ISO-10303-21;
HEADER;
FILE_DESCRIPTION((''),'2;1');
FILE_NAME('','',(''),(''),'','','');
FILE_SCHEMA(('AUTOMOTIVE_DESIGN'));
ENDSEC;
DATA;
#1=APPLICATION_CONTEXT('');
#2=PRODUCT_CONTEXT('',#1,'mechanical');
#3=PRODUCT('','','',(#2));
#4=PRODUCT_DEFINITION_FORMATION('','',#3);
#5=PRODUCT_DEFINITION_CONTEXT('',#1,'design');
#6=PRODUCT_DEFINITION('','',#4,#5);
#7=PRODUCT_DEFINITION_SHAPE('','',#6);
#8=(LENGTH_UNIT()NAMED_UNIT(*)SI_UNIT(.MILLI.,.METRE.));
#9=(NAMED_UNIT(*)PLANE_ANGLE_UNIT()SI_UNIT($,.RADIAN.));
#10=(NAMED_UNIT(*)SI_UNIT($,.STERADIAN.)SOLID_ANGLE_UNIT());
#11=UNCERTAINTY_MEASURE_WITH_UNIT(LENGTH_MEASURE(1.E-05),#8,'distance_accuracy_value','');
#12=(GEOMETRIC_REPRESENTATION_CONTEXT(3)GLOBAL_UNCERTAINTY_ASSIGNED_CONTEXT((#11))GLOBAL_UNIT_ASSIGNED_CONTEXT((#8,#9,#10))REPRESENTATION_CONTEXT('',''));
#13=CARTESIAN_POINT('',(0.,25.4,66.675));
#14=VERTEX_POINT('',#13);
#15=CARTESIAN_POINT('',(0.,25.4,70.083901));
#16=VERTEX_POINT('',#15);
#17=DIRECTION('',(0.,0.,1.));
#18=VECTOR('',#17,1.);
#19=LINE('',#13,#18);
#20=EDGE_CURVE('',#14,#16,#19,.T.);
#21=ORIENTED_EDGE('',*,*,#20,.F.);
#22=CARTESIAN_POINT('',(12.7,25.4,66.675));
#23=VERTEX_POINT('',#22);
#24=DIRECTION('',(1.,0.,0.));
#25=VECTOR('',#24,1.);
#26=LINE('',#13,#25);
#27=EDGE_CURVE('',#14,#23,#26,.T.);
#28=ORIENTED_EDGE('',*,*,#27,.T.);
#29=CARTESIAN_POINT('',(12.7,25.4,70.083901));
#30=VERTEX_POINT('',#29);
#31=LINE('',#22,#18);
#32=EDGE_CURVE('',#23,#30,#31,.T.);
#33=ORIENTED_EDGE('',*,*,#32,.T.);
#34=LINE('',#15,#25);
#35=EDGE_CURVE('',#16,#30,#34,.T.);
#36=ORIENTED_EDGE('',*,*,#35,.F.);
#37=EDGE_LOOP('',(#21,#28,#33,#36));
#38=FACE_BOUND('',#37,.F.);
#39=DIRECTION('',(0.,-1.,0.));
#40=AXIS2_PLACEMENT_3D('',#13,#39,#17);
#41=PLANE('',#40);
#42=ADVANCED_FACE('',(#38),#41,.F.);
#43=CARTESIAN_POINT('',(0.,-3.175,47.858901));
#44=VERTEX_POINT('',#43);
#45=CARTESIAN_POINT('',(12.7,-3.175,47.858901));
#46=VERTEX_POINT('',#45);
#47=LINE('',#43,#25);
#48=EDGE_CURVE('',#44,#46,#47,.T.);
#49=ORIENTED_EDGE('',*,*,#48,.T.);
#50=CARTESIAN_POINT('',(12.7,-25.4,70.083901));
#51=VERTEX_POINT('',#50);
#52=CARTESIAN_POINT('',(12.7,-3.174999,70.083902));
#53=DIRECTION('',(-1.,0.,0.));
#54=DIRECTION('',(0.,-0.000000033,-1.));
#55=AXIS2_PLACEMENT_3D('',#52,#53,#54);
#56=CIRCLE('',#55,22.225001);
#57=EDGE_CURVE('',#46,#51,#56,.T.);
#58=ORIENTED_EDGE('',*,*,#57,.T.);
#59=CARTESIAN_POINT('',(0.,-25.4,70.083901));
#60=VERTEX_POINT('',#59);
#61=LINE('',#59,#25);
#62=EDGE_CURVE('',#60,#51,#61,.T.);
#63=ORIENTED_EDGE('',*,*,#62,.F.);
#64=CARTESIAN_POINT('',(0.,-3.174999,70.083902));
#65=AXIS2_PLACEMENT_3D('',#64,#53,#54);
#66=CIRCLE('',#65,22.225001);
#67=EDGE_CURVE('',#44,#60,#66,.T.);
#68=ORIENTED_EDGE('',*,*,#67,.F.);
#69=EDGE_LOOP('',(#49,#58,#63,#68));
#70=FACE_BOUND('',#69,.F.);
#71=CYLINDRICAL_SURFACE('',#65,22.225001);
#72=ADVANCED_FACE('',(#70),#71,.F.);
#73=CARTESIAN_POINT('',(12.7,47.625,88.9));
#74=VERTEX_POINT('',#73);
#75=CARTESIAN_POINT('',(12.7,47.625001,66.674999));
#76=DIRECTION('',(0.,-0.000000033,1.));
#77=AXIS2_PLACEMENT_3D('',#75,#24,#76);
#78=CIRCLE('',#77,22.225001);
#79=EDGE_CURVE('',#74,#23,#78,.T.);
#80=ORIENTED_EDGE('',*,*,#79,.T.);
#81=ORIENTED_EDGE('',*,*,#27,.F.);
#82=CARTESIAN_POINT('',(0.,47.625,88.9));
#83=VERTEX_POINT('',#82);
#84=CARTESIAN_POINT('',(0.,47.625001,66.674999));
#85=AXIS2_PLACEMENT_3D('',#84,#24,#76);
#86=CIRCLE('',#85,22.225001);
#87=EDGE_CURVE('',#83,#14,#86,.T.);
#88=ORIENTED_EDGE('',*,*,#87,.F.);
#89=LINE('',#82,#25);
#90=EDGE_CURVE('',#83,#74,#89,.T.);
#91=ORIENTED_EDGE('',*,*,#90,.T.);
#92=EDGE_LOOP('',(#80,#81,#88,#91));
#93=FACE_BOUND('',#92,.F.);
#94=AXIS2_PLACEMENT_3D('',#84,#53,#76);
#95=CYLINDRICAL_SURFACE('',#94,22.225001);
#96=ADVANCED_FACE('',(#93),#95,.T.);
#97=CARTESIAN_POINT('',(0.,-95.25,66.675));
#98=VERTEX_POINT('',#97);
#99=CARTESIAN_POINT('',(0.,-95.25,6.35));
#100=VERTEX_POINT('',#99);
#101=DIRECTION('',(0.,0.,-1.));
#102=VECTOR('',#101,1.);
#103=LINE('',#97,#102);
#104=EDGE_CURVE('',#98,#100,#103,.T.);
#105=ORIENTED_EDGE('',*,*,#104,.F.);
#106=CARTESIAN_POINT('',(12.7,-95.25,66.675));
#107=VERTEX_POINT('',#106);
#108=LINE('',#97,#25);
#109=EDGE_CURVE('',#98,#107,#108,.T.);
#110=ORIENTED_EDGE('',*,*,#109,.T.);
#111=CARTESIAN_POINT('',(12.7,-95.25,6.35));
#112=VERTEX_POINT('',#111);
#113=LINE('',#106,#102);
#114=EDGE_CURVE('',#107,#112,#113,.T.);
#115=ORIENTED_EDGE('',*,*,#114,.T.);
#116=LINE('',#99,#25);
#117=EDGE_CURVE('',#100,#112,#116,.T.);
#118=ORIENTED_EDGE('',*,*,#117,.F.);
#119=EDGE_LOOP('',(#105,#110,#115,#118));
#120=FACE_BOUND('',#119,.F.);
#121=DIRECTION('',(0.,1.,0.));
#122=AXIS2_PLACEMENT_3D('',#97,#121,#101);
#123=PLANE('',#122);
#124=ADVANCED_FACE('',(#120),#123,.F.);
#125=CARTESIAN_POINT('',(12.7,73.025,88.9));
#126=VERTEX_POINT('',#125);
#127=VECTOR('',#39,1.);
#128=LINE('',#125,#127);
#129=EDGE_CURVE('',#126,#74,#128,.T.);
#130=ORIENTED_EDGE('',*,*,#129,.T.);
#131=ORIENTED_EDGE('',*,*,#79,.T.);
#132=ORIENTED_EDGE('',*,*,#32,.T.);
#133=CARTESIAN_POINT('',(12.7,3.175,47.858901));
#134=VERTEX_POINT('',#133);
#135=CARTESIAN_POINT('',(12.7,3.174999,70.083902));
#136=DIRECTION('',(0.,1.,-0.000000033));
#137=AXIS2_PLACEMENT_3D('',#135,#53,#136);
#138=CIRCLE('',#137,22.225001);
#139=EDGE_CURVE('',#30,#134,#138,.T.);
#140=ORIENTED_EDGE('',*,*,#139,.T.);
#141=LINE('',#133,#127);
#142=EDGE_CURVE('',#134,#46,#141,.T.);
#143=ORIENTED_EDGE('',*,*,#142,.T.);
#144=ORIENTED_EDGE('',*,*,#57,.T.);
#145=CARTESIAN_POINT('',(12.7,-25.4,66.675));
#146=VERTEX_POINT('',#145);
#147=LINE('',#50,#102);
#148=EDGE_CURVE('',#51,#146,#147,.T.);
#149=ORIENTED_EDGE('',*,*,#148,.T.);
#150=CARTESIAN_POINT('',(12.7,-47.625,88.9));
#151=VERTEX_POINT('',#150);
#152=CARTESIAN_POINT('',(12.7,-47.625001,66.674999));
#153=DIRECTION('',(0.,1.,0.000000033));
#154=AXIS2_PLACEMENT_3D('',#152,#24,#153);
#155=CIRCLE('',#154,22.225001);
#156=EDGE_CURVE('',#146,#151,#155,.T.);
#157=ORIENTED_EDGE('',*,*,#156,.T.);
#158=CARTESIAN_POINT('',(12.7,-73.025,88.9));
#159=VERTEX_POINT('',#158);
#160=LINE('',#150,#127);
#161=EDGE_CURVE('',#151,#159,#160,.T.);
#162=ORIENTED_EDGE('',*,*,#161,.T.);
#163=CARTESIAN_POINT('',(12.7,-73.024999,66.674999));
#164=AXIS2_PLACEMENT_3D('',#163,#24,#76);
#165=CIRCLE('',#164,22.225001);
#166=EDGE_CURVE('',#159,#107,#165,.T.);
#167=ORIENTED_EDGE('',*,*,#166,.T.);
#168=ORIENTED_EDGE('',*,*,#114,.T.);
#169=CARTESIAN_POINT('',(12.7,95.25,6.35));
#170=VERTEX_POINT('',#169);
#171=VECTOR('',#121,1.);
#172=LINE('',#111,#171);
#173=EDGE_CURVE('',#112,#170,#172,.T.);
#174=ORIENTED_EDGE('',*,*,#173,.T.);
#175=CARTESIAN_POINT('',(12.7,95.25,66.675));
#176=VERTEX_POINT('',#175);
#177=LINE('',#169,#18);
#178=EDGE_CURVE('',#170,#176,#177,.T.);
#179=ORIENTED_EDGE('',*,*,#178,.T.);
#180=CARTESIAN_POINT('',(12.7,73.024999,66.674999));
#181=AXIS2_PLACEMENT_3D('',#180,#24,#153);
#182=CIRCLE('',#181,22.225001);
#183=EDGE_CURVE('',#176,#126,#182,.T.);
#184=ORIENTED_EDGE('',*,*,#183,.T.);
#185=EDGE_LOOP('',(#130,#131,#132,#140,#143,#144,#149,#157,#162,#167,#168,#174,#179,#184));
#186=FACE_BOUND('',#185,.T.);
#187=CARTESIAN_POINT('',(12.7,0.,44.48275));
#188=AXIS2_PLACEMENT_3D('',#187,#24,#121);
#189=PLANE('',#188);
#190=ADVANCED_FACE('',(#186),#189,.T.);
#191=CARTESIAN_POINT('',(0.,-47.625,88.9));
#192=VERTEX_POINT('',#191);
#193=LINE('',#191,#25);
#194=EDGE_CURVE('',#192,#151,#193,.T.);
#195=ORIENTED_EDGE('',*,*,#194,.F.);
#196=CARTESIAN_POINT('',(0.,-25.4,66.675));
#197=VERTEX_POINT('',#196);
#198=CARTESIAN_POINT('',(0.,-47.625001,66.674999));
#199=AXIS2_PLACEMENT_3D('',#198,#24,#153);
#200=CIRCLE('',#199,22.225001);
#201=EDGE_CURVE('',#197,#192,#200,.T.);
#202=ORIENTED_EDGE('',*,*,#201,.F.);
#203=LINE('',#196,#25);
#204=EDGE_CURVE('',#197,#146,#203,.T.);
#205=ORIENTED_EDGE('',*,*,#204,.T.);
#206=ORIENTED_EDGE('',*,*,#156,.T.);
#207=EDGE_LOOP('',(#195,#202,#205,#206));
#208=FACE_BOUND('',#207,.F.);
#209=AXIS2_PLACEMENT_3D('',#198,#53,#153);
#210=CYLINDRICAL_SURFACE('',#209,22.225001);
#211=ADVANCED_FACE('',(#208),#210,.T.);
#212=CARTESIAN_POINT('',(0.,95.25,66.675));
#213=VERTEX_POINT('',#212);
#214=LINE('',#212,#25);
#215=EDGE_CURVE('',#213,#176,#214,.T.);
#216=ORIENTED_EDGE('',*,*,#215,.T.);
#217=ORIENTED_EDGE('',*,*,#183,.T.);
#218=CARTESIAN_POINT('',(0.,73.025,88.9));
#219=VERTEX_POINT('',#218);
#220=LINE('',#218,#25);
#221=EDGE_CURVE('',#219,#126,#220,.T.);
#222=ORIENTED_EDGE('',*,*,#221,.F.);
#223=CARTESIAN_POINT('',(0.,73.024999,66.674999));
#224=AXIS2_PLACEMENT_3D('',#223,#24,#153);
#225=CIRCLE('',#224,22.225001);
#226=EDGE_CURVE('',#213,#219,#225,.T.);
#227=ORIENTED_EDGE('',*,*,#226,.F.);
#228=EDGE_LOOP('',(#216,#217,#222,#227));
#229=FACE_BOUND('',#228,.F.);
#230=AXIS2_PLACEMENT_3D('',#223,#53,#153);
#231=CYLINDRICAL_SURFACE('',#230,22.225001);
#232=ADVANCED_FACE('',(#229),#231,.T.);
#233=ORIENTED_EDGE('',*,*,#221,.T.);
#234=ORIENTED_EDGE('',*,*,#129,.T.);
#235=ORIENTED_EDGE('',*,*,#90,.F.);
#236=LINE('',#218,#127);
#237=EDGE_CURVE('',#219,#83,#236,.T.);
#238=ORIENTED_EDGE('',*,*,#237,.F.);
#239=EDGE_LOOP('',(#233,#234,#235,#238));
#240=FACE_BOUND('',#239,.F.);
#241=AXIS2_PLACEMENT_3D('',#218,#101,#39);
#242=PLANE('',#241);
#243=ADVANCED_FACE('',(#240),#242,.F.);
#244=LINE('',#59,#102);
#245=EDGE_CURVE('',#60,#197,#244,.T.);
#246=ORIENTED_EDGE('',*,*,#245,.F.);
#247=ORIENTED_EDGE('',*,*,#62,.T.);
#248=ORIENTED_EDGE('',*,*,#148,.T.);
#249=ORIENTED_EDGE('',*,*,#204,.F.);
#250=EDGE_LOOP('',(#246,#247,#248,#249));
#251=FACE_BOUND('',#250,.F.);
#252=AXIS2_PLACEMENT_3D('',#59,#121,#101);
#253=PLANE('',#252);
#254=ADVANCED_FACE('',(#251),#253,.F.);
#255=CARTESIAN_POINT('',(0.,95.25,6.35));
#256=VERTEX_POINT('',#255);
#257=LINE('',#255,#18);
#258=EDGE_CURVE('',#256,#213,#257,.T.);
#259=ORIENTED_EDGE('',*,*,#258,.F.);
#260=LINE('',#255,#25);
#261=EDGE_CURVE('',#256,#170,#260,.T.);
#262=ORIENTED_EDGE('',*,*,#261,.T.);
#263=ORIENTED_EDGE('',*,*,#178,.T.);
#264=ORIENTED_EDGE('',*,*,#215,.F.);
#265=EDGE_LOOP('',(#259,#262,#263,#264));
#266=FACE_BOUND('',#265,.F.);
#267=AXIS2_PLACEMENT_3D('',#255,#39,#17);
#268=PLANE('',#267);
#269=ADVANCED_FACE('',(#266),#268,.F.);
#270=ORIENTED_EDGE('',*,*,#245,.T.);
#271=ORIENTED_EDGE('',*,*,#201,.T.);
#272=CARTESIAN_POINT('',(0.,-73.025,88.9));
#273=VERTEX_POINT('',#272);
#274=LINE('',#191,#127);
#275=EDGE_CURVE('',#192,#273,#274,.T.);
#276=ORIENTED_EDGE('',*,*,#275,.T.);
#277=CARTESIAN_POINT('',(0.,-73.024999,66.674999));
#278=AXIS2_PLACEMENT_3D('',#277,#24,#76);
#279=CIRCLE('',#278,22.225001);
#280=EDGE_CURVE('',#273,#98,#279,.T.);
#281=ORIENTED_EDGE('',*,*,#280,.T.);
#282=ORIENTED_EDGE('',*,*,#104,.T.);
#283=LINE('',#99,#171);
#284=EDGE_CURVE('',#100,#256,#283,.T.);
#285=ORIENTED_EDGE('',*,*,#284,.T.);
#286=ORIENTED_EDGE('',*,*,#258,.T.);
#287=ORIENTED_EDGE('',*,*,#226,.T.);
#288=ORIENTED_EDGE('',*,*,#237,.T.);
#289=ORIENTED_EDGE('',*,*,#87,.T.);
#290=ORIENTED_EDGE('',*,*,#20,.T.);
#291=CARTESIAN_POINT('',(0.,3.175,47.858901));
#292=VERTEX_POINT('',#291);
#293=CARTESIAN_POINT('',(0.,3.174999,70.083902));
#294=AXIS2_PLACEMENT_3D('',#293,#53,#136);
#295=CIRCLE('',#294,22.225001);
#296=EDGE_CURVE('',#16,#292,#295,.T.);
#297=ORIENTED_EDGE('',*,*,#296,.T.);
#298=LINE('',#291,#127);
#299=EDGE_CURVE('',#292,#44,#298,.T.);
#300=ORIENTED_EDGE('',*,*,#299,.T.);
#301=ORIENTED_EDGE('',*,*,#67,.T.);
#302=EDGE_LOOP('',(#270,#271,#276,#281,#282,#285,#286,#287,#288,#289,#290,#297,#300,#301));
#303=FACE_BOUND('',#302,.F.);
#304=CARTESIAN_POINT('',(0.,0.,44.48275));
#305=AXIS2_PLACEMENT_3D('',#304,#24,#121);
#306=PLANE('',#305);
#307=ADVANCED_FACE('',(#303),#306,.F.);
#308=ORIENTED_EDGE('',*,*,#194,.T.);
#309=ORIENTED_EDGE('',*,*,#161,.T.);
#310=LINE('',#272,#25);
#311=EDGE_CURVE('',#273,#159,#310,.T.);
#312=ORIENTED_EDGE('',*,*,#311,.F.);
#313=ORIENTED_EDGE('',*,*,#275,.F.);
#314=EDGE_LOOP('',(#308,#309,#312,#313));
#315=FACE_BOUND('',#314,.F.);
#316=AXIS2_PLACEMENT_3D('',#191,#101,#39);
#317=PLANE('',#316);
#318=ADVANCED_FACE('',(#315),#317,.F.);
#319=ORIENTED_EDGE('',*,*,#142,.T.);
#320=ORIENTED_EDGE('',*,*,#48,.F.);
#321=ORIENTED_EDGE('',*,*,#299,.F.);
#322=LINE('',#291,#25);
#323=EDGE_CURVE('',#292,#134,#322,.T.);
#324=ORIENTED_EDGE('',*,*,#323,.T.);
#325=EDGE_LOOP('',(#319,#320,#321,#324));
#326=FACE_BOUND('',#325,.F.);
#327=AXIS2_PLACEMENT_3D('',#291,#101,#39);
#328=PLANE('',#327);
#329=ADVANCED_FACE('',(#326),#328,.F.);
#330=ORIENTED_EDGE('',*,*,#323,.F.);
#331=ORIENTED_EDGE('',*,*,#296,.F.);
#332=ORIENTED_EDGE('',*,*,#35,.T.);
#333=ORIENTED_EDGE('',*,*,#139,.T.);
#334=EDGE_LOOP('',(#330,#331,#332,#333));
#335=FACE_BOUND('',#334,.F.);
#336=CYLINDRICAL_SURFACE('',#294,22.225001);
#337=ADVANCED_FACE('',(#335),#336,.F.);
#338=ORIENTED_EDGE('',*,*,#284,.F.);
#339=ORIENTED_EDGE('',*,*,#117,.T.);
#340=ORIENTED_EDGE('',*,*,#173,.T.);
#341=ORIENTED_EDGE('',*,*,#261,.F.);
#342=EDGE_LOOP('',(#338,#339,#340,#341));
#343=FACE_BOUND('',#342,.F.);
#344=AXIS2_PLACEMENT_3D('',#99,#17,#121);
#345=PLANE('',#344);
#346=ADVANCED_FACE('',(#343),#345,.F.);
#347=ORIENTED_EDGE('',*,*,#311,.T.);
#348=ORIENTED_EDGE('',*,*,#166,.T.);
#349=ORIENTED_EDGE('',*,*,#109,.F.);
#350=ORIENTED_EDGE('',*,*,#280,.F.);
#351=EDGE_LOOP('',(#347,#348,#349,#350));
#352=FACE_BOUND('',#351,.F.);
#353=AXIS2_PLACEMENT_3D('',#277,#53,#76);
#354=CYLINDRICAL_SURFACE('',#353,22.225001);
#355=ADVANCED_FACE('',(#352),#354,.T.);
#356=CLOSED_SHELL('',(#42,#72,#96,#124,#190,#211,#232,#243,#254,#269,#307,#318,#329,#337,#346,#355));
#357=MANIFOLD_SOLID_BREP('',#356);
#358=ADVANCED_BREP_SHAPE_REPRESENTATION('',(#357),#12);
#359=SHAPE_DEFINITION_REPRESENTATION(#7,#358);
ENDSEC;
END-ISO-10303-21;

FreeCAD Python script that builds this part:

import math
import FreeCAD as App
import Part
import Sketcher
from FreeCAD import Vector
Q = App.Units.Quantity

doc = App.newDocument("Part")
params = doc.addObject("Spreadsheet::Sheet", "Params")
for row, (alias, value) in enumerate([
    ("sketch1_width", "1 in"),
    ("sketch1_width2", "7.5 in"),
    ("sketch1_height", "2.375 in"),
    ("pad1_length", "0.5 in"),
], start=1):
    params.set(f"A{row}", alias)
    params.set(f"B{row}", "=" + value)
    params.setAlias(f"B{row}", alias)

body = doc.addObject("PartDesign::Body", "Body")

# Sketch on YZ plane
sketch1 = doc.addObject("Sketcher::SketchObject", "Sketch")
body.addObject(sketch1)
sketch1.AttachmentSupport = (doc.YZ_Plane, [""])
sketch1.MapMode = "FlatFace"
sketch1.addGeometry(Part.LineSegment(Vector(-47.6, 88.9, 0), Vector(-73, 88.9, 0)), False)
sketch1.addGeometry(Part.ArcOfCircle(Part.Circle(Vector(-73, 66.7, 0), Vector(0, 0, 1), 22.2), math.radians(90), math.radians(180)), False)
sketch1.addGeometry(Part.LineSegment(Vector(-95.2, 66.7, 0), Vector(-95.2, 6.3, 0)), False)
sketch1.addGeometry(Part.LineSegment(Vector(-95.2, 6.3, 0), Vector(95.2, 6.3, 0)), False)
sketch1.addGeometry(Part.LineSegment(Vector(95.2, 6.3, 0), Vector(95.2, 66.7, 0)), False)
sketch1.addGeometry(Part.ArcOfCircle(Part.Circle(Vector(73, 66.7, 0), Vector(0, 0, 1), 22.2), math.radians(0), math.radians(90)), False)
sketch1.addGeometry(Part.LineSegment(Vector(73, 88.9, 0), Vector(47.6, 88.9, 0)), False)
sketch1.addGeometry(Part.ArcOfCircle(Part.Circle(Vector(47.6, 66.7, 0), Vector(0, 0, 1), 22.2), math.radians(90), math.radians(180)), False)
sketch1.addGeometry(Part.LineSegment(Vector(25.4, 66.7, 0), Vector(25.4, 70.1, 0)), False)
sketch1.addGeometry(Part.ArcOfCircle(Part.Circle(Vector(3.2, 70.1, 0), Vector(0, 0, 1), 22.2), math.radians(-90), math.radians(0)), False)
sketch1.addGeometry(Part.LineSegment(Vector(3.2, 47.9, 0), Vector(-3.2, 47.9, 0)), False)
sketch1.addGeometry(Part.ArcOfCircle(Part.Circle(Vector(-3.2, 70.1, 0), Vector(0, 0, 1), 22.2), math.radians(-180), math.radians(-90)), False)
sketch1.addGeometry(Part.LineSegment(Vector(-25.4, 70.1, 0), Vector(-25.4, 66.7, 0)), False)
sketch1.addGeometry(Part.ArcOfCircle(Part.Circle(Vector(-47.6, 66.7, 0), Vector(0, 0, 1), 22.2), math.radians(0), math.radians(90)), False)
sketch1.addConstraint(Sketcher.Constraint("Tangent", 0, 2, 1, 1))
sketch1.addConstraint(Sketcher.Constraint("Tangent", 1, 2, 2, 1))
sketch1.addConstraint(Sketcher.Constraint("Coincident", 2, 2, 3, 1))
sketch1.addConstraint(Sketcher.Constraint("Coincident", 3, 2, 4, 1))
sketch1.addConstraint(Sketcher.Constraint("Tangent", 4, 2, 5, 1))
sketch1.addConstraint(Sketcher.Constraint("Tangent", 5, 2, 6, 1))
sketch1.addConstraint(Sketcher.Constraint("Tangent", 6, 2, 7, 1))
sketch1.addConstraint(Sketcher.Constraint("Tangent", 7, 2, 8, 1))
sketch1.addConstraint(Sketcher.Constraint("Tangent", 8, 2, 9, 2))
sketch1.addConstraint(Sketcher.Constraint("Tangent", 9, 1, 10, 1))
sketch1.addConstraint(Sketcher.Constraint("Tangent", 10, 2, 11, 2))
sketch1.addConstraint(Sketcher.Constraint("Tangent", 11, 1, 12, 1))
sketch1.addConstraint(Sketcher.Constraint("Tangent", 12, 2, 13, 1))
sketch1.addConstraint(Sketcher.Constraint("Tangent", 13, 2, 0, 1))
sketch1.addConstraint(Sketcher.Constraint("Horizontal", 0))
sketch1.addConstraint(Sketcher.Constraint("Vertical", 2))
sketch1.addConstraint(Sketcher.Constraint("Horizontal", 3))
sketch1.addConstraint(Sketcher.Constraint("Vertical", 4))
sketch1.addConstraint(Sketcher.Constraint("Horizontal", 6))
sketch1.addConstraint(Sketcher.Constraint("Vertical", 8))
sketch1.addConstraint(Sketcher.Constraint("Horizontal", 10))
sketch1.addConstraint(Sketcher.Constraint("Vertical", 12))
sketch1.addConstraint(Sketcher.Constraint("Equal", 1, 5))
sketch1.addConstraint(Sketcher.Constraint("Equal", 5, 7))
sketch1.addConstraint(Sketcher.Constraint("Equal", 7, 9))
sketch1.addConstraint(Sketcher.Constraint("Equal", 9, 11))
sketch1.addConstraint(Sketcher.Constraint("Equal", 11, 13))
sketch1.addConstraint(Sketcher.Constraint("Symmetric", 1, 3, 5, 3, -2))
sketch1.addConstraint(Sketcher.Constraint("Equal", 0, 6))
sketch1.addConstraint(Sketcher.Constraint("DistanceX", 0, 2, 0, 1, Q("1 in")))
sketch1.addConstraint(Sketcher.Constraint("DistanceX", 3, 1, 3, 2, Q("7.5 in")))
sketch1.addConstraint(Sketcher.Constraint("DistanceX", -1, 1, 7, 2, Q("1 in")))
sketch1.addConstraint(Sketcher.Constraint("DistanceY", -1, 1, 0, 2, Q("3.5 in")))
sketch1.addConstraint(Sketcher.Constraint("DistanceY", 2, 2, 2, 1, Q("2.375 in")))
sketch1.addConstraint(Sketcher.Constraint("DistanceY", 8, 1, 8, 2, Q("3.408901 mm")))
sketch1.setExpression("Constraints[29]", "Params.sketch1_width")
sketch1.setExpression("Constraints[30]", "Params.sketch1_width2")
sketch1.setExpression("Constraints[33]", "Params.sketch1_height")
pad1 = doc.addObject("PartDesign::Pad", "Pad")
body.addObject(pad1)
pad1.Profile = sketch1
pad1.setExpression("Length", "Params.pad1_length")

doc.recompute()
